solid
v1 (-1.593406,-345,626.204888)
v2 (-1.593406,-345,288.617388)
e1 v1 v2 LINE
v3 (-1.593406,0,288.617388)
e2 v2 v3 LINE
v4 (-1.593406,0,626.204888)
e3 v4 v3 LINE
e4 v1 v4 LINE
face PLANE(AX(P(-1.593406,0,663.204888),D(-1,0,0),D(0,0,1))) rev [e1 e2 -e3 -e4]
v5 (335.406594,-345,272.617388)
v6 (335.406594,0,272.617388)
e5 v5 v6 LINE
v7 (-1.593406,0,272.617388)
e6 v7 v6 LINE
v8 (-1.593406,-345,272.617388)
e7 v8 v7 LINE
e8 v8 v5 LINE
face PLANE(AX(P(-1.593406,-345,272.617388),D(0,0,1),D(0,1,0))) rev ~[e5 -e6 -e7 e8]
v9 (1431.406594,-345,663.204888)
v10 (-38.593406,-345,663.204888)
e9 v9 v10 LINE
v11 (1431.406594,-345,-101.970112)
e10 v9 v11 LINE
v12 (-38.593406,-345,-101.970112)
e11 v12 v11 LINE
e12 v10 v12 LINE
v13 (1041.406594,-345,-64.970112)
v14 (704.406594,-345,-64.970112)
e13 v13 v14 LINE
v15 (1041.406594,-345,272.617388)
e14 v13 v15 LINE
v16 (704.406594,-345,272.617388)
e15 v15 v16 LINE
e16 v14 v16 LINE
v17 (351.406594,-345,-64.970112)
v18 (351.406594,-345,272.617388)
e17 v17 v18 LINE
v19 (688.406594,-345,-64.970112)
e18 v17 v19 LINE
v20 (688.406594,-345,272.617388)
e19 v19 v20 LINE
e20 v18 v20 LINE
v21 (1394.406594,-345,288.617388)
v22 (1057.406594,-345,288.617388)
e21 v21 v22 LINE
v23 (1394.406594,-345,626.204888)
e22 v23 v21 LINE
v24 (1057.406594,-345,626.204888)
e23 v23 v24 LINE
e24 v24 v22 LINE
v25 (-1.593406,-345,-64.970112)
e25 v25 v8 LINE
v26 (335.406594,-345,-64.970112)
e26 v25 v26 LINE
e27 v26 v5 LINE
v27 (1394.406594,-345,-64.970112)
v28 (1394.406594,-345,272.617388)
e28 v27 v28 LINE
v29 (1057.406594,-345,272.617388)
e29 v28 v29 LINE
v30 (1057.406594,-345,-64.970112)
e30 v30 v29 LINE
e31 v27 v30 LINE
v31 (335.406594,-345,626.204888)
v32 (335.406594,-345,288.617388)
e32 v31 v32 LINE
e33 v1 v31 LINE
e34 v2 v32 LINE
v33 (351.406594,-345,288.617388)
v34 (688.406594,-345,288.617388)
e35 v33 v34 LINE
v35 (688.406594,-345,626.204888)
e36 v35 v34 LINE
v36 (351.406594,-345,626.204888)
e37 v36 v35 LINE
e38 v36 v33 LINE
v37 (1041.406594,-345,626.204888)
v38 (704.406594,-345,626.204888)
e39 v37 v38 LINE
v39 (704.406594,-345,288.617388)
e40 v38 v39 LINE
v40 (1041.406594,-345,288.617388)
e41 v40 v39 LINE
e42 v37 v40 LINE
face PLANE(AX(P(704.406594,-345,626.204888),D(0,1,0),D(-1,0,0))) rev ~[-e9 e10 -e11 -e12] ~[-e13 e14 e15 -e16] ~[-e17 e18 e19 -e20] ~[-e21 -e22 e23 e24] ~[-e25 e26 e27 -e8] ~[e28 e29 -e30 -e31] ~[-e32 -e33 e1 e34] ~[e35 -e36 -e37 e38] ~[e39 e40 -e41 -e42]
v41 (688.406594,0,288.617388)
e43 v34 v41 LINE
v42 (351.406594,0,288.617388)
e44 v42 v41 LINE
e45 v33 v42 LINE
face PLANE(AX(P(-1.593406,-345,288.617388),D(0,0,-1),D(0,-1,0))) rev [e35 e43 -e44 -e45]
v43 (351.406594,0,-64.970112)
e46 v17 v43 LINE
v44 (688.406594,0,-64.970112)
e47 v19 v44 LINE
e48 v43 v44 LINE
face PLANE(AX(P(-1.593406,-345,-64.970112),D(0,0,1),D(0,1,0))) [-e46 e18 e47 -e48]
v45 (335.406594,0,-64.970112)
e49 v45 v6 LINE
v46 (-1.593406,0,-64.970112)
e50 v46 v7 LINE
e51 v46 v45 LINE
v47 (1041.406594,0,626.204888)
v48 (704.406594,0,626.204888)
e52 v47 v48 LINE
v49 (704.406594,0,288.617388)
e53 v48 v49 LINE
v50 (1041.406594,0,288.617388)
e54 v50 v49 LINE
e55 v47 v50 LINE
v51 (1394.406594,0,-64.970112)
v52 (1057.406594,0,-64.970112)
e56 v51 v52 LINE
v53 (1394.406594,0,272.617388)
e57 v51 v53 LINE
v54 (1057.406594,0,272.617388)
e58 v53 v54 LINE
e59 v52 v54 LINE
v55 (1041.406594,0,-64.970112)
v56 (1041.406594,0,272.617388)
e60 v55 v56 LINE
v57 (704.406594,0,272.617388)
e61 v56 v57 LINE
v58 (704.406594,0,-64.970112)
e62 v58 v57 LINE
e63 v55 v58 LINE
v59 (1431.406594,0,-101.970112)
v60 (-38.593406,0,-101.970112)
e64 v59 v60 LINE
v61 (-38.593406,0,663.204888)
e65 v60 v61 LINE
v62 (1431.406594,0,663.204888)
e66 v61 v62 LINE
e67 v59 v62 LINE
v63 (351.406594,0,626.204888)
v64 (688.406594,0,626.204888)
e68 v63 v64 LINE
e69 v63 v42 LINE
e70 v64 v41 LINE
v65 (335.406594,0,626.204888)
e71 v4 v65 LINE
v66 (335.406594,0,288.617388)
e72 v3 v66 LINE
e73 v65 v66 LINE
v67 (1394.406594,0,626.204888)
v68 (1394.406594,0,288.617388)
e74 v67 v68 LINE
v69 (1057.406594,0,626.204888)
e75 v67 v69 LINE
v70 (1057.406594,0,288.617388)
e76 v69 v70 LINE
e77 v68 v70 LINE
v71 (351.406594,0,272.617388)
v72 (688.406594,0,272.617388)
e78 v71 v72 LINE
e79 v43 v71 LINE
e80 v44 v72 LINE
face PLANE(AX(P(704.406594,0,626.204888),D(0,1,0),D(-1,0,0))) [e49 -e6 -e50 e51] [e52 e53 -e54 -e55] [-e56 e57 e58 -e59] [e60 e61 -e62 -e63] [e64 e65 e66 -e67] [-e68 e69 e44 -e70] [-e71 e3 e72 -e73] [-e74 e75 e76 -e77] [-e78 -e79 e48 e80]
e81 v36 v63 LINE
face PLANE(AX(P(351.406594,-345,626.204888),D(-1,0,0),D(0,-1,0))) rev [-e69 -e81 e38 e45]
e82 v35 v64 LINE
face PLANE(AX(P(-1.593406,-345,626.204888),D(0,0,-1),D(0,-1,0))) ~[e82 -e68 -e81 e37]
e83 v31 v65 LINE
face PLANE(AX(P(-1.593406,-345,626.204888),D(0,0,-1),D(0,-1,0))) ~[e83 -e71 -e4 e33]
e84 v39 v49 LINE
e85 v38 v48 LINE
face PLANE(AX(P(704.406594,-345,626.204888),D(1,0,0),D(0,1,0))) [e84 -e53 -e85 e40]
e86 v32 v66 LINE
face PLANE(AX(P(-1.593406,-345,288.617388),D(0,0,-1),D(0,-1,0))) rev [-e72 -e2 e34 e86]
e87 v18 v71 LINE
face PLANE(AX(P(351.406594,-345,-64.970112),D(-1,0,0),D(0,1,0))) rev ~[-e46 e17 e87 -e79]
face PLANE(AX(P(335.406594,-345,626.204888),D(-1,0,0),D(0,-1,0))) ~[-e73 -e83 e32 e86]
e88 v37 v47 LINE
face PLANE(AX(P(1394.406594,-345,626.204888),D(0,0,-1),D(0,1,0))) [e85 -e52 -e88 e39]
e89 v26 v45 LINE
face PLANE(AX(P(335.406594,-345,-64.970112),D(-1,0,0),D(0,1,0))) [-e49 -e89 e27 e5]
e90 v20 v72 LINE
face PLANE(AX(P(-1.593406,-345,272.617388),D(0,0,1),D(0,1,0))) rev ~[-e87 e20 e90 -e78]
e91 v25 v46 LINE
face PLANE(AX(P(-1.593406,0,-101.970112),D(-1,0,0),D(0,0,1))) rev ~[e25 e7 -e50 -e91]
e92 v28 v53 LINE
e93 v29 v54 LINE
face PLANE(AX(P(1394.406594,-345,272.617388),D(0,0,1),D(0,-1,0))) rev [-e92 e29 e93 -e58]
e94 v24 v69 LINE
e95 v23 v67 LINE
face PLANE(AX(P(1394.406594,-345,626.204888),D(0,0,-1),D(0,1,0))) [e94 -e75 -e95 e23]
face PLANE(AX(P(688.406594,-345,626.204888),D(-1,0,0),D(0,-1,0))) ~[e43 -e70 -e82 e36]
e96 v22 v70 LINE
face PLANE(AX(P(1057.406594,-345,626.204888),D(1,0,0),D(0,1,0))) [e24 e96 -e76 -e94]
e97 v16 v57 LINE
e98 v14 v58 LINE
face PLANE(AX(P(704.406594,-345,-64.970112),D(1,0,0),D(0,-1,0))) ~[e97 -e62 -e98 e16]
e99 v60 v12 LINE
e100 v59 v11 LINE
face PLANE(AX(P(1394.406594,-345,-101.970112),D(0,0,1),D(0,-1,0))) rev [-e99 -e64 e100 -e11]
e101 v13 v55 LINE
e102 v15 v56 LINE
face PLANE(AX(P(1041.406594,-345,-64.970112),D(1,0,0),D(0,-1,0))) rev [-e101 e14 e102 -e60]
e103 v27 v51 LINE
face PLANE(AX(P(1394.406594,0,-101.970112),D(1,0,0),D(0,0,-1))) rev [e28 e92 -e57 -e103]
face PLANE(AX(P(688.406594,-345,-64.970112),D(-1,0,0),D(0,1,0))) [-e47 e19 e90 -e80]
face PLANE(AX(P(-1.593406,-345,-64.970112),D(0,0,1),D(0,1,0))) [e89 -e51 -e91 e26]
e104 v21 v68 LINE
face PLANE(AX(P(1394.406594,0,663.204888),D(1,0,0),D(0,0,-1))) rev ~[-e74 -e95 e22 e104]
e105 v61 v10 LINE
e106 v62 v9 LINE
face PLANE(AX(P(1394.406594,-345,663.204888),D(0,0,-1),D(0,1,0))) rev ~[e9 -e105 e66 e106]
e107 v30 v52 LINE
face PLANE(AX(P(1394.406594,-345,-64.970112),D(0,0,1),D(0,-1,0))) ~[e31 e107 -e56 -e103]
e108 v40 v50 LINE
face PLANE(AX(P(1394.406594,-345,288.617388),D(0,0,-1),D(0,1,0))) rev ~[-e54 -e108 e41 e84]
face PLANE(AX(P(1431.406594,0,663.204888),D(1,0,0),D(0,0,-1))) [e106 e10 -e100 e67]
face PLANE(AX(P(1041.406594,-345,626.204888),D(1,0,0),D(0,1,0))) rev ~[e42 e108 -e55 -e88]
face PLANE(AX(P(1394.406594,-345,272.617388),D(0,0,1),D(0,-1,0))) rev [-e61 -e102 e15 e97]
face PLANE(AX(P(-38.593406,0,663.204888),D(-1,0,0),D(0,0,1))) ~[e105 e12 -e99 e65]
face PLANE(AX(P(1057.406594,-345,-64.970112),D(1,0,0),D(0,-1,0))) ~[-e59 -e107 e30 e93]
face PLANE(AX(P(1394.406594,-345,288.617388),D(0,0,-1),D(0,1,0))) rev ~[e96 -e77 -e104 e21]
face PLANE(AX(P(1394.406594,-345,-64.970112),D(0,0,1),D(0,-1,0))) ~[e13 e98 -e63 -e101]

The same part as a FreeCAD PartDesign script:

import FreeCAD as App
import Part
import Sketcher
from FreeCAD import Vector
Q = App.Units.Quantity

doc = App.newDocument("Part")
params = doc.addObject("Spreadsheet::Sheet", "Params")
for row, (alias, value) in enumerate([
    ("sketch1_width", "37 mm"),
    ("pad1_length", "345 mm"),
    ("sketch2_width", "345 mm"),
    ("sketch2_height", "37 mm"),
    ("pad2_length", "698 mm"),
    ("sketch3_width", "345 mm"),
    ("sketch3_height", "8 mm"),
    ("pad3_length", "698 mm"),
    ("sketch4_width", "16 mm"),
    ("sketch4_width2", "8 mm"),
    ("sketch4_height", "345 mm"),
], start=1):
    params.set(f"A{row}", alias)
    params.set(f"B{row}", "=" + value)
    params.setAlias(f"B{row}", alias)

body = doc.addObject("PartDesign::Body", "Body")

sketch1 = doc.addObject("Sketcher::SketchObject", "Sketch")
body.addObject(sketch1)
sketch1.AttachmentSupport = (doc.XZ_Plane, [""])
sketch1.MapMode = "FlatFace"
sketch1.addGeometry([
    Part.LineSegment(Vector(-39, 281, 0), Vector(-39, -102, 0)),
    Part.LineSegment(Vector(-39, -102, 0), Vector(-2, -102, 0)),
    Part.LineSegment(Vector(-2, -102, 0), Vector(-2, 281, 0)),
    Part.LineSegment(Vector(-2, 281, 0), Vector(-39, 281, 0)),
], False)
sketch1.addConstraint([
    Sketcher.Constraint("Coincident", 0, 2, 1, 1),
    Sketcher.Constraint("Coincident", 1, 2, 2, 1),
    Sketcher.Constraint("Coincident", 2, 2, 3, 1),
    Sketcher.Constraint("Coincident", 3, 2, 0, 1),
    Sketcher.Constraint("Vertical", 0),
    Sketcher.Constraint("Horizontal", 1),
    Sketcher.Constraint("Vertical", 2),
    Sketcher.Constraint("Horizontal", 3),
    Sketcher.Constraint("DistanceX", 1, 1, 1, 2, Q("37 mm")),
    Sketcher.Constraint("DistanceY", 0, 2, 0, 1, Q("382.5875 mm")),
    Sketcher.Constraint("DistanceY", 0, 2, -1, 1, Q("101.970112 mm")),
    Sketcher.Constraint("DistanceX", 0, 2, -1, 1, Q("38.593406 mm")),
])
sketch1.setExpression("Constraints[8]", "Params.sketch1_width")
pad1 = doc.addObject("PartDesign::Pad", "Pad")
body.addObject(pad1)
pad1.Profile = sketch1
pad1.setExpression("Length", "Params.pad1_length")

sketch2 = doc.addObject("Sketcher::SketchObject", "Sketch001")
body.addObject(sketch2)
sketch2.AttachmentSupport = (doc.YZ_Plane, [""])
sketch2.MapMode = "FlatFace"
sketch2.AttachmentOffset = App.Placement(Vector(0, 0, -1.593406), App.Rotation())
sketch2.addGeometry([
    Part.LineSegment(Vector(-345, -65, 0), Vector(-345, -102, 0)),
    Part.LineSegment(Vector(-345, -102, 0), Vector(0, -102, 0)),
    Part.LineSegment(Vector(0, -102, 0), Vector(0, -65, 0)),
    Part.LineSegment(Vector(0, -65, 0), Vector(-345, -65, 0)),
], False)
sketch2.addConstraint([
    Sketcher.Constraint("Coincident", 0, 2, 1, 1),
    Sketcher.Constraint("Coincident", 1, 2, 2, 1),
    Sketcher.Constraint("Coincident", 2, 2, 3, 1),
    Sketcher.Constraint("Coincident", 3, 2, 0, 1),
    Sketcher.Constraint("Vertical", 0),
    Sketcher.Constraint("Horizontal", 1),
    Sketcher.Constraint("Vertical", 2),
    Sketcher.Constraint("Horizontal", 3),
    Sketcher.Constraint("PointOnObject", 1, 2, -2),
    Sketcher.Constraint("DistanceX", 1, 1, 1, 2, Q("345 mm")),
    Sketcher.Constraint("DistanceY", 0, 2, 0, 1, Q("37 mm")),
    Sketcher.Constraint("DistanceY", 0, 2, -1, 1, Q("101.970112 mm")),
])
sketch2.setExpression("Constraints[9]", "Params.sketch2_width")
sketch2.setExpression("Constraints[10]", "Params.sketch2_height")
pad2 = doc.addObject("PartDesign::Pad", "Pad001")
body.addObject(pad2)
pad2.Profile = sketch2
pad2.setExpression("Length", "Params.pad2_length")

sketch3 = doc.addObject("Sketcher::SketchObject", "Sketch002")
body.addObject(sketch3)
sketch3.AttachmentSupport = (doc.YZ_Plane, [""])
sketch3.MapMode = "FlatFace"
sketch3.AttachmentOffset = App.Placement(Vector(0, 0, -1.593406), App.Rotation())
sketch3.addGeometry([
    Part.LineSegment(Vector(-345, 281, 0), Vector(-345, 273, 0)),
    Part.LineSegment(Vector(-345, 273, 0), Vector(0, 273, 0)),
    Part.LineSegment(Vector(0, 273, 0), Vector(0, 281, 0)),
    Part.LineSegment(Vector(0, 281, 0), Vector(-345, 281, 0)),
], False)
sketch3.addConstraint([
    Sketcher.Constraint("Coincident", 0, 2, 1, 1),
    Sketcher.Constraint("Coincident", 1, 2, 2, 1),
    Sketcher.Constraint("Coincident", 2, 2, 3, 1),
    Sketcher.Constraint("Coincident", 3, 2, 0, 1),
    Sketcher.Constraint("Vertical", 0),
    Sketcher.Constraint("Horizontal", 1),
    Sketcher.Constraint("Vertical", 2),
    Sketcher.Constraint("Horizontal", 3),
    Sketcher.Constraint("PointOnObject", 1, 2, -2),
    Sketcher.Constraint("DistanceX", 1, 1, 1, 2, Q("345 mm")),
    Sketcher.Constraint("DistanceY", 0, 2, 0, 1, Q("8 mm")),
    Sketcher.Constraint("DistanceY", -1, 1, 0, 2, Q("272.617388 mm")),
])
sketch3.setExpression("Constraints[9]", "Params.sketch3_width")
sketch3.setExpression("Constraints[10]", "Params.sketch3_height")
pad3 = doc.addObject("PartDesign::Pad", "Pad002")
body.addObject(pad3)
pad3.Profile = sketch3
pad3.setExpression("Length", "Params.pad3_length")

sketch4 = doc.addObject("Sketcher::SketchObject", "Sketch003")
body.addObject(sketch4)
sketch4.AttachmentSupport = (doc.XY_Plane, [""])
sketch4.MapMode = "FlatFace"
sketch4.AttachmentOffset = App.Placement(Vector(0, 0, -64.970112), App.Rotation())
sketch4.addGeometry([
    Part.LineSegment(Vector(335, 0, 0), Vector(335, -345, 0)),
    Part.LineSegment(Vector(335, -345, 0), Vector(351, -345, 0)),
    Part.LineSegment(Vector(351, -345, 0), Vector(351, 0, 0)),
    Part.LineSegment(Vector(351, 0, 0), Vector(335, 0, 0)),
    Part.LineSegment(Vector(688, 0, 0), Vector(688, -345, 0)),
    Part.LineSegment(Vector(688, -345, 0), Vector(696, -345, 0)),
    Part.LineSegment(Vector(696, -345, 0), Vector(696, 0, 0)),
    Part.LineSegment(Vector(696, 0, 0), Vector(688, 0, 0)),
], False)
sketch4.addConstraint([
    Sketcher.Constraint("Coincident", 0, 2, 1, 1),
    Sketcher.Constraint("Coincident", 1, 2, 2, 1),
    Sketcher.Constraint("Coincident", 2, 2, 3, 1),
    Sketcher.Constraint("Coincident", 3, 2, 0, 1),
    Sketcher.Constraint("Coincident", 4, 2, 5, 1),
    Sketcher.Constraint("Coincident", 5, 2, 6, 1),
    Sketcher.Constraint("Coincident", 6, 2, 7, 1),
    Sketcher.Constraint("Coincident", 7, 2, 4, 1),
    Sketcher.Constraint("Vertical", 0),
    Sketcher.Constraint("Horizontal", 1),
    Sketcher.Constraint("Vertical", 2),
    Sketcher.Constraint("Horizontal", 3),
    Sketcher.Constraint("Vertical", 4),
    Sketcher.Constraint("Horizontal", 5),
    Sketcher.Constraint("Vertical", 6),
    Sketcher.Constraint("Horizontal", 7),
    Sketcher.Constraint("PointOnObject", 2, 2, -1),
    Sketcher.Constraint("PointOnObject", 6, 2, -1),
    Sketcher.Constraint("Horizontal", 1, 2, 4, 2),
    Sketcher.Constraint("DistanceX", 1, 1, 1, 2, Q("16 mm")),
    Sketcher.Constraint("DistanceX", 5, 1, 5, 2, Q("8 mm")),
    Sketcher.Constraint("DistanceY", 0, 2, 0, 1, Q("345 mm")),
    Sketcher.Constraint("DistanceX", 1, 2, 4, 2, Q("337 mm")),
    Sketcher.Constraint("DistanceX", -1, 1, 0, 2, Q("335.406594 mm")),
])
sketch4.setExpression("Constraints[19]", "Params.sketch4_width")
sketch4.setExpression("Constraints[20]", "Params.sketch4_width2")
sketch4.setExpression("Constraints[21]", "Params.sketch4_height")
pad4 = doc.addObject("PartDesign::Pad", "Pad003")
body.addObject(pad4)
pad4.Profile = sketch4
pad4.Type = "UpToLast"
body2 = doc.addObject("PartDesign::Body", "Body001")
doc.recompute()

body2.BaseFeature = body
doc.recompute()

mirroring = doc.addObject("Part::Mirroring", "Mirroring")
mirroring.Source = body
mirroring.Base = Vector(328.906594, -172.5, 280.617388)
mirroring.Normal = Vector(0, 0, 1)
body3 = doc.addObject("PartDesign::Body", "Body002")
body3.BaseFeature = mirroring
boolean = doc.addObject("PartDesign::Boolean", "Boolean")
body2.addObject(boolean)
boolean.Type = "Fuse"
boolean.addObjects([body3])
doc.recompute()
body4 = doc.addObject("PartDesign::Body", "Body003")
doc.recompute()

body4.BaseFeature = body2
doc.recompute()

mirroring2 = doc.addObject("Part::Mirroring", "Mirroring001")
mirroring2.Source = body2
mirroring2.Base = Vector(696.406594, -172.5, 280.617388)
mirroring2.Normal = Vector(1, 0, 0)
body5 = doc.addObject("PartDesign::Body", "Body004")
body5.BaseFeature = mirroring2
boolean2 = doc.addObject("PartDesign::Boolean", "Boolean001")
body4.addObject(boolean2)
boolean2.Type = "Fuse"
boolean2.addObjects([body5])
doc.recompute()
mirroring.Visibility = False
mirroring2.Visibility = False

doc.recompute()
